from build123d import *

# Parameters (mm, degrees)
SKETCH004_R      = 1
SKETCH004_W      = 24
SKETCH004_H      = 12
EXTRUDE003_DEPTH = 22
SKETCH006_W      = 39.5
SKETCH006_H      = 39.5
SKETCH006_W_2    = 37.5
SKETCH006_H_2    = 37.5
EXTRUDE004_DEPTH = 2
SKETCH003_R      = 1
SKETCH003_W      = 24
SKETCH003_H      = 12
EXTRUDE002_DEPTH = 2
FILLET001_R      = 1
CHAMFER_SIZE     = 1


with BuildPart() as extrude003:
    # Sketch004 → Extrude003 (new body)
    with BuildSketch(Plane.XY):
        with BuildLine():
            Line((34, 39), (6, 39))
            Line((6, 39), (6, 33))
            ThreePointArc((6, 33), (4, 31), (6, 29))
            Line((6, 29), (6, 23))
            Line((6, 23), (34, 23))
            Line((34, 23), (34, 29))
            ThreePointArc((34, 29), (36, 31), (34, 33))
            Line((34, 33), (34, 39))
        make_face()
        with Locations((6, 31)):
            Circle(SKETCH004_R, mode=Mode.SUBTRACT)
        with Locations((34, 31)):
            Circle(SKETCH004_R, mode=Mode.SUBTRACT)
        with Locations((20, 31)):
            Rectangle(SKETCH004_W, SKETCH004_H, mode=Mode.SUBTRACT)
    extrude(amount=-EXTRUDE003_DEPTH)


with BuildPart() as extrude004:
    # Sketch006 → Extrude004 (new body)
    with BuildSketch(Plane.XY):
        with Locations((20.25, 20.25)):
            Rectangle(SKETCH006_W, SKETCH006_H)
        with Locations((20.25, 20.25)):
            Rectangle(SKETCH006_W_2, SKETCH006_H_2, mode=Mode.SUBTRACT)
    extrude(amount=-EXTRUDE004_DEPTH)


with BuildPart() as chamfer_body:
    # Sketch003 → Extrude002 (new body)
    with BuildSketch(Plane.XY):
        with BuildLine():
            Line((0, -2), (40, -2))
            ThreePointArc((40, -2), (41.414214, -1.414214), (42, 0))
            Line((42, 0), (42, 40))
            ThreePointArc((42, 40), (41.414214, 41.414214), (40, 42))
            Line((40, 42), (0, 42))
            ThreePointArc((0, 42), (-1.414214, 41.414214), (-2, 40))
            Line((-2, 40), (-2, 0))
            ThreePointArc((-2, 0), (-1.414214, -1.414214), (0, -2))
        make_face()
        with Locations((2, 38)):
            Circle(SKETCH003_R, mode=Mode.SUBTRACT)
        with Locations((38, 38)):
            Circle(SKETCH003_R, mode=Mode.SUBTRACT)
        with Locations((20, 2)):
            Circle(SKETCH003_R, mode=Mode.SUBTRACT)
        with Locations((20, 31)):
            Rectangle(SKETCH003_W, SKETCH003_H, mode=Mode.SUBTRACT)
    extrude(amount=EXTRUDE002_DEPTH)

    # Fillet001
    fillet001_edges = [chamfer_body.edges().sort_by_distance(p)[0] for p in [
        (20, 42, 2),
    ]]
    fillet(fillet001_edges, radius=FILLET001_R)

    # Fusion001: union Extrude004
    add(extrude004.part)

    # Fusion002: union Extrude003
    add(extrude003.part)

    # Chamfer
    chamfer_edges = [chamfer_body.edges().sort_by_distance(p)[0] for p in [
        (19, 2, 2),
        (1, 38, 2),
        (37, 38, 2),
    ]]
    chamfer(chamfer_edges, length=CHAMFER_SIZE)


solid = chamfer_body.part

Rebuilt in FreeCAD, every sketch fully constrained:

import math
import FreeCAD as App
import Part
import Sketcher
from FreeCAD import Vector
Q = App.Units.Quantity


def edges_at(feature, points):
    """Names of the edges that pass closest to the given points."""
    edges = feature.Shape.Edges
    near = lambda p: min(range(len(edges)), key=lambda i: edges[i].distToShape(Part.Vertex(*p))[0])
    return sorted({f"Edge{near(p) + 1}" for p in points})


def add_polygon(sketch, points):
    """Adds a closed chain of lines whose ends are joined by coincident constraints."""
    first, n = sketch.GeometryCount, len(points)
    for a, b in zip(points, points[1:] + points[:1]):
        sketch.addGeometry(Part.LineSegment(App.Vector(*a, 0), App.Vector(*b, 0)), False)
    for i in range(n):
        sketch.addConstraint(Sketcher.Constraint("Coincident", first + i, 2, first + (i + 1) % n, 1))

doc = App.newDocument("Part")
params = doc.addObject("Spreadsheet::Sheet", "Params")
for row, (alias, value) in enumerate([
    ("sketch1_diameter", "2 mm"),
    ("sketch1_radius", "2 mm"),
    ("sketch1_width", "28 mm"),
    ("sketch1_width2", "24 mm"),
    ("sketch1_height", "6 mm"),
    ("pad1_length", "22 mm"),
    ("sketch2_width", "39.5 mm"),
    ("sketch2_width2", "37.5 mm"),
    ("pad2_length", "2 mm"),
    ("sketch3_diameter", "2 mm"),
    ("sketch3_radius", "1.999999 mm"),
    ("sketch3_width", "40 mm"),
    ("sketch3_width2", "24 mm"),
    ("sketch3_height", "12 mm"),
    ("pad3_length", "2 mm"),
    ("fillet_radius", "1 mm"),
    ("chamfer_size", "1 mm"),
], start=1):
    params.set(f"A{row}", alias)
    params.set(f"B{row}", "=" + value)
    params.setAlias(f"B{row}", alias)

body = doc.addObject("PartDesign::Body", "Body")

# Sketch on XY plane
sketch1 = doc.addObject("Sketcher::SketchObject", "Sketch")
body.addObject(sketch1)
sketch1.AttachmentSupport = (doc.XY_Plane, [""])
sketch1.MapMode = "FlatFace"
sketch1.addGeometry(Part.LineSegment(Vector(34, 39, 0), Vector(6, 39, 0)), False)  # 0
sketch1.addGeometry(Part.LineSegment(Vector(6, 39, 0), Vector(6, 33, 0)), False)  # 1
sketch1.addGeometry(Part.ArcOfCircle(Part.Circle(Vector(6, 31, 0), Vector(0, 0, 1), 2), math.radians(90), math.radians(270)), False)  # 2
sketch1.addGeometry(Part.LineSegment(Vector(6, 29, 0), Vector(6, 23, 0)), False)  # 3
sketch1.addGeometry(Part.LineSegment(Vector(6, 23, 0), Vector(34, 23, 0)), False)  # 4
sketch1.addGeometry(Part.LineSegment(Vector(34, 23, 0), Vector(34, 29, 0)), False)  # 5
sketch1.addGeometry(Part.ArcOfCircle(Part.Circle(Vector(34, 31, 0), Vector(0, 0, 1), 2), math.radians(-90), math.radians(90)), False)  # 6
sketch1.addGeometry(Part.LineSegment(Vector(34, 33, 0), Vector(34, 39, 0)), False)  # 7
sketch1.addGeometry(Part.Circle(Vector(6, 31, 0), Vector(0, 0, 1), 1), False)  # 8
add_polygon(sketch1, [(32, 25), (8, 25), (8, 37), (32, 37)])  # lines 9-12
sketch1.addGeometry(Part.Circle(Vector(34, 31, 0), Vector(0, 0, 1), 1), False)  # 13
sketch1.addConstraint(Sketcher.Constraint("Coincident", 0, 2, 1, 1))
sketch1.addConstraint(Sketcher.Constraint("Coincident", 1, 2, 2, 1))
sketch1.addConstraint(Sketcher.Constraint("Coincident", 2, 2, 3, 1))
sketch1.addConstraint(Sketcher.Constraint("Coincident", 3, 2, 4, 1))
sketch1.addConstraint(Sketcher.Constraint("Coincident", 4, 2, 5, 1))
sketch1.addConstraint(Sketcher.Constraint("Coincident", 5, 2, 6, 1))
sketch1.addConstraint(Sketcher.Constraint("Coincident", 6, 2, 7, 1))
sketch1.addConstraint(Sketcher.Constraint("Coincident", 7, 2, 0, 1))
sketch1.addConstraint(Sketcher.Constraint("Horizontal", 0))
sketch1.addConstraint(Sketcher.Constraint("Vertical", 1))
sketch1.addConstraint(Sketcher.Constraint("Vertical", 3))
sketch1.addConstraint(Sketcher.Constraint("Horizontal", 4))
sketch1.addConstraint(Sketcher.Constraint("Vertical", 5))
sketch1.addConstraint(Sketcher.Constraint("Vertical", 7))
sketch1.addConstraint(Sketcher.Constraint("Horizontal", 9))
sketch1.addConstraint(Sketcher.Constraint("Vertical", 10))
sketch1.addConstraint(Sketcher.Constraint("Horizontal", 11))
sketch1.addConstraint(Sketcher.Constraint("Vertical", 12))
sketch1.addConstraint(Sketcher.Constraint("Coincident", 8, 3, 2, 3))
sketch1.addConstraint(Sketcher.Constraint("Coincident", 13, 3, 6, 3))
sketch1.addConstraint(Sketcher.Constraint("Equal", 2, 6))
sketch1.addConstraint(Sketcher.Constraint("Equal", 8, 13))
sketch1.addConstraint(Sketcher.Constraint("Horizontal", 2, 3, 6, 3))
sketch1.addConstraint(Sketcher.Constraint("Vertical", 8, 3, 0, 2))
sketch1.addConstraint(Sketcher.Constraint("Vertical", 1, 2, 2, 2))
sketch1.addConstraint(Sketcher.Constraint("Vertical", 13, 3, 4, 2))
sketch1.addConstraint(Sketcher.Constraint("Vertical", 5, 2, 6, 2))
sketch1.addConstraint(Sketcher.Constraint("Equal", 1, 3))
sketch1.addConstraint(Sketcher.Constraint("Diameter", 8, Q("2 mm")))
sketch1.addConstraint(Sketcher.Constraint("Radius", 2, Q("2 mm")))
sketch1.addConstraint(Sketcher.Constraint("DistanceX", 0, 2, 0, 1, Q("28 mm")))
sketch1.addConstraint(Sketcher.Constraint("DistanceX", 9, 2, 9, 1, Q("24 mm")))
sketch1.addConstraint(Sketcher.Constraint("DistanceY", 1, 2, 1, 1, Q("6 mm")))
sketch1.addConstraint(Sketcher.Constraint("DistanceY", 10, 1, 10, 2, Q("12 mm")))
sketch1.addConstraint(Sketcher.Constraint("DistanceX", -1, 1, 2, 3, Q("6 mm")))
sketch1.addConstraint(Sketcher.Constraint("DistanceY", -1, 1, 2, 3, Q("31 mm")))
sketch1.addConstraint(Sketcher.Constraint("DistanceX", -1, 1, 9, 2, Q("8 mm")))
sketch1.addConstraint(Sketcher.Constraint("DistanceY", -1, 1, 9, 2, Q("25 mm")))
sketch1.setExpression("Constraints[32]", "Params.sketch1_diameter")
sketch1.setExpression("Constraints[33]", "Params.sketch1_radius")
sketch1.setExpression("Constraints[34]", "Params.sketch1_width")
sketch1.setExpression("Constraints[35]", "Params.sketch1_width2")
sketch1.setExpression("Constraints[36]", "Params.sketch1_height")
pad1 = doc.addObject("PartDesign::Pad", "Pad")
body.addObject(pad1)
pad1.Profile = sketch1
pad1.setExpression("Length", "Params.pad1_length")
pad1.Reversed = True
body2 = doc.addObject("PartDesign::Body", "Body001")

# Sketch on XY plane
sketch2 = doc.addObject("Sketcher::SketchObject", "Sketch001")
body2.addObject(sketch2)
sketch2.AttachmentSupport = (doc.getObject("XY_Plane001"), [""])
sketch2.MapMode = "FlatFace"
add_polygon(sketch2, [(0.5, 40), (0.5, 0.5), (40, 0.5), (40, 40)])  # lines 0-3
add_polygon(sketch2, [(39, 1.5), (1.5, 1.5), (1.5, 39), (39, 39)])  # lines 4-7
sketch2.addConstraint(Sketcher.Constraint("Vertical", 0))
sketch2.addConstraint(Sketcher.Constraint("Horizontal", 1))
sketch2.addConstraint(Sketcher.Constraint("Vertical", 2))
sketch2.addConstraint(Sketcher.Constraint("Horizontal", 3))
sketch2.addConstraint(Sketcher.Constraint("Horizontal", 4))
sketch2.addConstraint(Sketcher.Constraint("Vertical", 5))
sketch2.addConstraint(Sketcher.Constraint("Horizontal", 6))
sketch2.addConstraint(Sketcher.Constraint("Vertical", 7))
sketch2.addConstraint(Sketcher.Constraint("Equal", 3, 0))
sketch2.addConstraint(Sketcher.Constraint("Equal", 6, 5))
sketch2.addConstraint(Sketcher.Constraint("DistanceX", 1, 1, 1, 2, Q("39.5 mm")))
sketch2.addConstraint(Sketcher.Constraint("DistanceX", 4, 2, 4, 1, Q("37.5 mm")))
sketch2.addConstraint(Sketcher.Constraint("DistanceX", -1, 1, 1, 2, Q("40 mm")))
sketch2.addConstraint(Sketcher.Constraint("DistanceY", -1, 1, 2, 2, Q("40 mm")))
sketch2.addConstraint(Sketcher.Constraint("DistanceY", -1, 1, 5, 2, Q("39 mm")))
sketch2.addConstraint(Sketcher.Constraint("DistanceX", -1, 1, 6, 2, Q("39 mm")))
sketch2.setExpression("Constraints[18]", "Params.sketch2_width")
sketch2.setExpression("Constraints[19]", "Params.sketch2_width2")
pad2 = doc.addObject("PartDesign::Pad", "Pad001")
body2.addObject(pad2)
pad2.Profile = sketch2
pad2.setExpression("Length", "Params.pad2_length")
pad2.Reversed = True
body3 = doc.addObject("PartDesign::Body", "Body002")

# Sketch on XY plane
sketch3 = doc.addObject("Sketcher::SketchObject", "Sketch002")
body3.addObject(sketch3)
sketch3.AttachmentSupport = (doc.getObject("XY_Plane002"), [""])
sketch3.MapMode = "FlatFace"
sketch3.addGeometry(Part.LineSegment(Vector(0, -2, 0), Vector(40, -2, 0)), False)  # 0
sketch3.addGeometry(Part.ArcOfCircle(Part.Circle(Vector(40.000001, -0.000001, 0), Vector(0, 0, 1), 1.999999), math.radians(-90.000043), math.radians(0.000043)), False)  # 1
sketch3.addGeometry(Part.LineSegment(Vector(42, 0, 0), Vector(42, 40, 0)), False)  # 2
sketch3.addGeometry(Part.ArcOfCircle(Part.Circle(Vector(40.000001, 40.000001, 0), Vector(0, 0, 1), 1.999999), math.radians(-0.000043), math.radians(90.000043)), False)  # 3
sketch3.addGeometry(Part.LineSegment(Vector(40, 42, 0), Vector(0, 42, 0)), False)  # 4
sketch3.addGeometry(Part.ArcOfCircle(Part.Circle(Vector(-0.000001, 40.000001, 0), Vector(0, 0, 1), 1.999999), math.radians(89.999957), math.radians(180.000043)), False)  # 5
sketch3.addGeometry(Part.LineSegment(Vector(-2, 40, 0), Vector(-2, 0, 0)), False)  # 6
sketch3.addGeometry(Part.ArcOfCircle(Part.Circle(Vector(-0.000001, -0.000001, 0), Vector(0, 0, 1), 1.999999), math.radians(179.999957), math.radians(270.000043)), False)  # 7
sketch3.addGeometry(Part.Circle(Vector(20, 2, 0), Vector(0, 0, 1), 1), False)  # 8
sketch3.addGeometry(Part.Circle(Vector(2, 38, 0), Vector(0, 0, 1), 1), False)  # 9
add_polygon(sketch3, [(32, 25), (8, 25), (8, 37), (32, 37)])  # lines 10-13
sketch3.addGeometry(Part.Circle(Vector(38, 38, 0), Vector(0, 0, 1), 1), False)  # 14
sketch3.addConstraint(Sketcher.Constraint("Tangent", 0, 2, 1, 1))
sketch3.addConstraint(Sketcher.Constraint("Tangent", 1, 2, 2, 1))
sketch3.addConstraint(Sketcher.Constraint("Tangent", 2, 2, 3, 1))
sketch3.addConstraint(Sketcher.Constraint("Tangent", 3, 2, 4, 1))
sketch3.addConstraint(Sketcher.Constraint("Tangent", 4, 2, 5, 1))
sketch3.addConstraint(Sketcher.Constraint("Tangent", 5, 2, 6, 1))
sketch3.addConstraint(Sketcher.Constraint("Tangent", 6, 2, 7, 1))
sketch3.addConstraint(Sketcher.Constraint("Tangent", 7, 2, 0, 1))
sketch3.addConstraint(Sketcher.Constraint("Horizontal", 0))
sketch3.addConstraint(Sketcher.Constraint("Vertical", 2))
sketch3.addConstraint(Sketcher.Constraint("Horizontal", 4))
sketch3.addConstraint(Sketcher.Constraint("Vertical", 6))
sketch3.addConstraint(Sketcher.Constraint("Horizontal", 10))
sketch3.addConstraint(Sketcher.Constraint("Vertical", 11))
sketch3.addConstraint(Sketcher.Constraint("Horizontal", 12))
sketch3.addConstraint(Sketcher.Constraint("Vertical", 13))
sketch3.addConstraint(Sketcher.Constraint("Coincident", 7, 3, -1, 1))
sketch3.addConstraint(Sketcher.Constraint("Equal", 1, 3))
sketch3.addConstraint(Sketcher.Constraint("Equal", 3, 5))
sketch3.addConstraint(Sketcher.Constraint("Equal", 5, 7))
sketch3.addConstraint(Sketcher.Constraint("Equal", 8, 9))
sketch3.addConstraint(Sketcher.Constraint("Equal", 9, 14))
sketch3.addConstraint(Sketcher.Constraint("Horizontal", 9, 3, 14, 3))
sketch3.addConstraint(Sketcher.Constraint("Equal", 4, 2))
sketch3.addConstraint(Sketcher.Constraint("Diameter", 8, Q("2 mm")))
sketch3.addConstraint(Sketcher.Constraint("Radius", 1, Q("1.999999 mm")))
sketch3.addConstraint(Sketcher.Constraint("DistanceX", 0, 1, 0, 2, Q("40 mm")))
sketch3.addConstraint(Sketcher.Constraint("DistanceX", 10, 2, 10, 1, Q("24 mm")))
sketch3.addConstraint(Sketcher.Constraint("DistanceY", 11, 1, 11, 2, Q("12 mm")))
sketch3.addConstraint(Sketcher.Constraint("DistanceX", -1, 1, 8, 3, Q("20 mm")))
sketch3.addConstraint(Sketcher.Constraint("DistanceY", -1, 1, 8, 3, Q("2 mm")))
sketch3.addConstraint(Sketcher.Constraint("DistanceX", -1, 1, 9, 3, Q("2 mm")))
sketch3.addConstraint(Sketcher.Constraint("DistanceY", -1, 1, 9, 3, Q("38 mm")))
sketch3.addConstraint(Sketcher.Constraint("DistanceX", -1, 1, 14, 3, Q("38 mm")))
sketch3.addConstraint(Sketcher.Constraint("DistanceX", -1, 1, 10, 2, Q("8 mm")))
sketch3.addConstraint(Sketcher.Constraint("DistanceY", -1, 1, 10, 2, Q("25 mm")))
sketch3.setExpression("Constraints[28]", "Params.sketch3_diameter")
sketch3.setExpression("Constraints[29]", "Params.sketch3_radius")
sketch3.setExpression("Constraints[30]", "Params.sketch3_width")
sketch3.setExpression("Constraints[31]", "Params.sketch3_width2")
sketch3.setExpression("Constraints[32]", "Params.sketch3_height")
pad3 = doc.addObject("PartDesign::Pad", "Pad002")
body3.addObject(pad3)
pad3.Profile = sketch3
pad3.setExpression("Length", "Params.pad3_length")
doc.recompute()

fillet = doc.addObject("PartDesign::Fillet", "Fillet")
body3.addObject(fillet)
fillet.Base = (pad3, edges_at(pad3, [(20, 42, 2)]))
fillet.setExpression("Radius", "Params.fillet_radius")
doc.recompute()

boolean = doc.addObject("PartDesign::Boolean", "Boolean")
body3.addObject(boolean)
boolean.Type = "Fuse"
boolean.addObjects([body2])
doc.recompute()

boolean2 = doc.addObject("PartDesign::Boolean", "Boolean001")
body3.addObject(boolean2)
boolean2.Type = "Fuse"
boolean2.addObjects([body])
doc.recompute()

chamfer = doc.addObject("PartDesign::Chamfer", "Chamfer")
body3.addObject(chamfer)
chamfer.Base = (boolean2, edges_at(boolean2, [(19, 2, 2), (1, 38, 2), (37, 38, 2)]))
chamfer.setExpression("Size", "Params.chamfer_size")

doc.recompute()
